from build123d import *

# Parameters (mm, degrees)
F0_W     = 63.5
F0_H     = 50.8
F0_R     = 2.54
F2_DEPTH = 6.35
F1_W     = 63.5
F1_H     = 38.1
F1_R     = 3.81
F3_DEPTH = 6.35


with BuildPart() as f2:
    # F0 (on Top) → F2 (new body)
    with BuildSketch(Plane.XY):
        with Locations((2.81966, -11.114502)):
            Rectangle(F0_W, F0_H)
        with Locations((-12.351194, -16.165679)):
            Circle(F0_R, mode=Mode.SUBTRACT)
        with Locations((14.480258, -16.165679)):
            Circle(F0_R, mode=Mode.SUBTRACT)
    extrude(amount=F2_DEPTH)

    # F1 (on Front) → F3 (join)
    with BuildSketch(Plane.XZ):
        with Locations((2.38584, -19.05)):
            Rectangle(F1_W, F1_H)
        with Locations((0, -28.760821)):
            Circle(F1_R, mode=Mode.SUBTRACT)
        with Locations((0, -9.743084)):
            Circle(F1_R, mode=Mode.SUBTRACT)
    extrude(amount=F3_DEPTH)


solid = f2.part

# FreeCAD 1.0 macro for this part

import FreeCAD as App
import Part
import Sketcher

V = App.Vector
Q = App.Units.Quantity


def add_polygon(sketch, points):
    """Adds a closed chain of lines whose ends are joined by coincident constraints."""
    first, n = sketch.GeometryCount, len(points)
    for a, b in zip(points, points[1:] + points[:1]):
        sketch.addGeometry(Part.LineSegment(App.Vector(*a, 0), App.Vector(*b, 0)), False)
    for i in range(n):
        sketch.addConstraint(Sketcher.Constraint("Coincident", first + i, 2, first + (i + 1) % n, 1))

doc = App.newDocument("Part")
body = doc.addObject("PartDesign::Body", "Body")

sketch1 = doc.addObject("Sketcher::SketchObject", "Sketch")
body.addObject(sketch1)
sketch1.AttachmentSupport = (doc.XY_Plane, [""])
sketch1.MapMode = "FlatFace"
add_polygon(sketch1, [(-28.9, 14.3), (-28.9, -36.5), (34.6, -36.5), (34.6, 14.3)])
sketch1.addGeometry(Part.Circle(V(-12.4, -16.2, 0), V(0, 0, 1), 2.5), False)
sketch1.addGeometry(Part.Circle(V(14.5, -16.2, 0), V(0, 0, 1), 2.5), False)
sketch1.addConstraint(Sketcher.Constraint("Vertical", 0))
sketch1.addConstraint(Sketcher.Constraint("Horizontal", 1))
sketch1.addConstraint(Sketcher.Constraint("Vertical", 2))
sketch1.addConstraint(Sketcher.Constraint("Horizontal", 3))
sketch1.addConstraint(Sketcher.Constraint("Equal", 4, 5))
sketch1.addConstraint(Sketcher.Constraint("Horizontal", 4, 3, 5, 3))
sketch1.addConstraint(Sketcher.Constraint("Diameter", 4, Q("0.2 in")))
sketch1.addConstraint(Sketcher.Constraint("DistanceY", 0, 2, 0, 1, Q("2 in")))
sketch1.addConstraint(Sketcher.Constraint("DistanceX", 1, 1, 1, 2, Q("2.5 in")))
sketch1.addConstraint(Sketcher.Constraint("DistanceX", 5, 3, 1, 2, 20.089402))
sketch1.addConstraint(Sketcher.Constraint("DistanceY", 4, 3, -1, 1, 16.165679))
sketch1.addConstraint(Sketcher.Constraint("DistanceX", 0, 2, -1, 1, 28.93034))
sketch1.addConstraint(Sketcher.Constraint("DistanceX", 4, 3, 5, 3, 26.831452))
sketch1.addConstraint(Sketcher.Constraint("DistanceY", 0, 2, -1, 1, 36.514502))
pad1 = doc.addObject("PartDesign::Pad", "Pad")
body.addObject(pad1)
pad1.Profile = sketch1
pad1.Length = Q("0.25 in")

sketch2 = doc.addObject("Sketcher::SketchObject", "Sketch001")
body.addObject(sketch2)
sketch2.AttachmentSupport = (doc.XZ_Plane, [""])
sketch2.MapMode = "FlatFace"
add_polygon(sketch2, [(-29.4, 0), (-29.4, -38.1), (34.1, -38.1), (34.1, 0)])
sketch2.addGeometry(Part.Circle(V(0, -28.8, 0), V(0, 0, 1), 3.8), False)
sketch2.addGeometry(Part.Circle(V(0, -9.7, 0), V(0, 0, 1), 3.8), False)
sketch2.addConstraint(Sketcher.Constraint("Vertical", 0))
sketch2.addConstraint(Sketcher.Constraint("Horizontal", 1))
sketch2.addConstraint(Sketcher.Constraint("Vertical", 2))
sketch2.addConstraint(Sketcher.Constraint("Horizontal", 3))
sketch2.addConstraint(Sketcher.Constraint("Equal", 4, 5))
sketch2.addConstraint(Sketcher.Constraint("PointOnObject", 4, 3, -2))
sketch2.addConstraint(Sketcher.Constraint("PointOnObject", 5, 3, -2))
sketch2.addConstraint(Sketcher.Constraint("PointOnObject", 2, 2, -1))
sketch2.addConstraint(Sketcher.Constraint("Diameter", 4, Q("0.3 in")))
sketch2.addConstraint(Sketcher.Constraint("DistanceX", 1, 1, 1, 2, Q("2.5 in")))
sketch2.addConstraint(Sketcher.Constraint("DistanceY", 0, 2, 0, 1, Q("1.5 in")))
sketch2.addConstraint(Sketcher.Constraint("DistanceY", 4, 3, -1, 1, 28.760821))
sketch2.addConstraint(Sketcher.Constraint("DistanceX", 0, 2, -1, 1, 29.36416))
sketch2.addConstraint(Sketcher.Constraint("DistanceY", 5, 3, -1, 1, 9.743084))
pad2 = doc.addObject("PartDesign::Pad", "Pad001")
body.addObject(pad2)
pad2.Profile = sketch2
pad2.Length = Q("0.25 in")

doc.recompute()
